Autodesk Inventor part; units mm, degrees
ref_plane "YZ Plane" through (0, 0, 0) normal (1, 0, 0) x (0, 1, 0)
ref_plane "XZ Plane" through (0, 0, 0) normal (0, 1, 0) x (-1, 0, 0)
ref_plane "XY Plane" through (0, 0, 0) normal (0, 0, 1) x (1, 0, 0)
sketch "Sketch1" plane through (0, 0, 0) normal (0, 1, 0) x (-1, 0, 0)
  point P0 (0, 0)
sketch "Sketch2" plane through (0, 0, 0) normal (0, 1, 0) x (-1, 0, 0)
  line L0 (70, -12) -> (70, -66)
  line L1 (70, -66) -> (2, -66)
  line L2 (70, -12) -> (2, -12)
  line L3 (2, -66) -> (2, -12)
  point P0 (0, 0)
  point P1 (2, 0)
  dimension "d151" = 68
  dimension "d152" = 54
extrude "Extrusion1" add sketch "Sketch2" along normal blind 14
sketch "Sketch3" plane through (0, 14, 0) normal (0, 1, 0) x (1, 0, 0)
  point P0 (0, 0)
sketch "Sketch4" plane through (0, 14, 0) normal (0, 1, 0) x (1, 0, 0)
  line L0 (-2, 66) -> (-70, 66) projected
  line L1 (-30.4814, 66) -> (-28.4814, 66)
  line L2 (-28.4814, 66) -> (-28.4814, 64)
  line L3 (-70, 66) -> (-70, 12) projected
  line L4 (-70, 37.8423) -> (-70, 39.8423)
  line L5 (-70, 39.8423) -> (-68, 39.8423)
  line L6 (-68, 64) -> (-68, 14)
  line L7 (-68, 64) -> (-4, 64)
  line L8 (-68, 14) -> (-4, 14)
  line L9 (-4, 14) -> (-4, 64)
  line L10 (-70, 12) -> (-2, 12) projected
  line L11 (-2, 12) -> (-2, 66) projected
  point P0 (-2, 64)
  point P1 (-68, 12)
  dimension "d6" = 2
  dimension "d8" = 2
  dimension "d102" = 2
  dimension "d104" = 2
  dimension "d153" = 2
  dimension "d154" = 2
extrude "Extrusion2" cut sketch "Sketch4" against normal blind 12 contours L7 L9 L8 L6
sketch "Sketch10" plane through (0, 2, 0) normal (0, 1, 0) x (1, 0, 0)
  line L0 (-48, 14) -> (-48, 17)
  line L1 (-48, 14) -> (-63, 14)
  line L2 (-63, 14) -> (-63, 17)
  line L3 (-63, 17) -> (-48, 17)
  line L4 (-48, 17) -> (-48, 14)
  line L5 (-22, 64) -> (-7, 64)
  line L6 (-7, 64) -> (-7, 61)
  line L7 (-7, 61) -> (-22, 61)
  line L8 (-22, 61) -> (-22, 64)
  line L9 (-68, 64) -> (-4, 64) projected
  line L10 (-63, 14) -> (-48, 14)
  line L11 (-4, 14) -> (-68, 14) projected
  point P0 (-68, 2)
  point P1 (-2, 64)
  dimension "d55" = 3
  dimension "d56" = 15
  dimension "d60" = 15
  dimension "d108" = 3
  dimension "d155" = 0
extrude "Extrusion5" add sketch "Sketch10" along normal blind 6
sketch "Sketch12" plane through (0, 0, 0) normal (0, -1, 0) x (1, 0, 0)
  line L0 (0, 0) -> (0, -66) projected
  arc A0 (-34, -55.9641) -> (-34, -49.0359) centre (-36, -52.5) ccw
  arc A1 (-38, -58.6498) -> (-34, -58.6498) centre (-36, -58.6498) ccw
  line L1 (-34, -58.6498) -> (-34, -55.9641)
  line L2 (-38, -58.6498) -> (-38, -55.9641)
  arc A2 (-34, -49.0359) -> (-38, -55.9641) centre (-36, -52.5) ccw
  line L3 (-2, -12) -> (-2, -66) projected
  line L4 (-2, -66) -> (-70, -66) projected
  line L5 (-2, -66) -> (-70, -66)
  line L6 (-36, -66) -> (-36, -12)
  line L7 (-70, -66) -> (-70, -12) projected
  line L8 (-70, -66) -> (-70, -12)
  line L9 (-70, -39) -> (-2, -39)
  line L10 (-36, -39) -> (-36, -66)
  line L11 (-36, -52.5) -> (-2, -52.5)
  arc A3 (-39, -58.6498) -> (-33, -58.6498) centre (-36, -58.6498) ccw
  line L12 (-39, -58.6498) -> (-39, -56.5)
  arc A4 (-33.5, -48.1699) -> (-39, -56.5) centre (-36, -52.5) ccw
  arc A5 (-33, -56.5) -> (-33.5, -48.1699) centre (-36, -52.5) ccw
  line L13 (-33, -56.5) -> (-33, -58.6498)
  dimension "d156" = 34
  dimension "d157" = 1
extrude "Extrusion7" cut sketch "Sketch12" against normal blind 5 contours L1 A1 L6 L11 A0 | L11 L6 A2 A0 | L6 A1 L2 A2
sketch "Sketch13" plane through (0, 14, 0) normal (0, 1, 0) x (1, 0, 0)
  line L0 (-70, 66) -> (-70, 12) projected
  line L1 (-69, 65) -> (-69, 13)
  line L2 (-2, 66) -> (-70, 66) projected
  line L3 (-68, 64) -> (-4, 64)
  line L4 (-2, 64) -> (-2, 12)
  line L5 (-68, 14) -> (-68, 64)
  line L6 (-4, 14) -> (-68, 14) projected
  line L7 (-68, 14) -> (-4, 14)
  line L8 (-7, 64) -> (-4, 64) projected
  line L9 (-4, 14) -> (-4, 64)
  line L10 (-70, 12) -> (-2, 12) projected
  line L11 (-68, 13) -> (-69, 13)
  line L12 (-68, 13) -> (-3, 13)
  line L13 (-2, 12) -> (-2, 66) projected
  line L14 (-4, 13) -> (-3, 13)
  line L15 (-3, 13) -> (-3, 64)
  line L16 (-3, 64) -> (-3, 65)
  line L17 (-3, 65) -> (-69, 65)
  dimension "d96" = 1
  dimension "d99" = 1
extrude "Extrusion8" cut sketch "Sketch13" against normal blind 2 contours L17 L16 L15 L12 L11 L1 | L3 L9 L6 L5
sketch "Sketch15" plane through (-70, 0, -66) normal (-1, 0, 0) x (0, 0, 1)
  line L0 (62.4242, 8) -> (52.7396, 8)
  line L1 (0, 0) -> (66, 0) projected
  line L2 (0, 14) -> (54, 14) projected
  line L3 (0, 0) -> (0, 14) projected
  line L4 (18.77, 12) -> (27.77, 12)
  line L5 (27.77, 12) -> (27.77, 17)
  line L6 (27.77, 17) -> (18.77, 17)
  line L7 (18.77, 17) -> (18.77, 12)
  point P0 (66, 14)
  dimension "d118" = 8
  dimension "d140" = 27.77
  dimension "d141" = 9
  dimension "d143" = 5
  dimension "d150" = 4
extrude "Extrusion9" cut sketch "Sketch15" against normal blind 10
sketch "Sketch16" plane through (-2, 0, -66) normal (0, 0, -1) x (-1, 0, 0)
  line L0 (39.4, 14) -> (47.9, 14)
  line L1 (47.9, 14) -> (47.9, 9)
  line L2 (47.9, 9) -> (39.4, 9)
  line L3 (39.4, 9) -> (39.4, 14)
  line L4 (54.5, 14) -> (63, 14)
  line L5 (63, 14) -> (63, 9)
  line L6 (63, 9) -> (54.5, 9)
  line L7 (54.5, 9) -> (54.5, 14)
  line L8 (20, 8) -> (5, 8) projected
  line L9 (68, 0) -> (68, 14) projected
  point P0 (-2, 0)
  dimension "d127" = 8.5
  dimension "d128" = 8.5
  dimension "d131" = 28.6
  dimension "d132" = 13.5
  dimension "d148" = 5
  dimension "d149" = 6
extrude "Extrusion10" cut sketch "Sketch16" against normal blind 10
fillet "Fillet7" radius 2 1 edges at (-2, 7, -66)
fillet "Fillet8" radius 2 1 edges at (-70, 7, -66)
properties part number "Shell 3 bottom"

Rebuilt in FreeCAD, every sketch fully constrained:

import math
import FreeCAD as App
import Part
import Sketcher

V = App.Vector
Q = App.Units.Quantity


def edges_at(feature, points):
    """Names of the edges that pass closest to the given points."""
    edges = feature.Shape.Edges
    near = lambda p: min(range(len(edges)), key=lambda i: edges[i].distToShape(Part.Vertex(*p))[0])
    return sorted({f"Edge{near(p) + 1}" for p in points})

doc = App.newDocument("Part")
body = doc.addObject("PartDesign::Body", "Body")

sketch1 = body.newObject("Sketcher::SketchObject", "Sketch")
sketch1.AttachmentSupport = (doc.getObject("XZ_Plane"), [""])
sketch1.MapMode = "FlatFace"
sketch1.addGeometry(Part.LineSegment(V(-70, -66, 0), V(-70, -12, 0)), False)
sketch1.addGeometry(Part.LineSegment(V(-70, -12, 0), V(-2, -12, 0)), False)
sketch1.addGeometry(Part.LineSegment(V(-2, -12, 0), V(-2, -66, 0)), False)
sketch1.addGeometry(Part.LineSegment(V(-2, -66, 0), V(-70, -66, 0)), False)
sketch1.addConstraint(Sketcher.Constraint("Coincident", 0, 2, 1, 1))
sketch1.addConstraint(Sketcher.Constraint("Coincident", 1, 2, 2, 1))
sketch1.addConstraint(Sketcher.Constraint("Coincident", 2, 2, 3, 1))
sketch1.addConstraint(Sketcher.Constraint("Coincident", 3, 2, 0, 1))
sketch1.addConstraint(Sketcher.Constraint("Vertical", 0))
sketch1.addConstraint(Sketcher.Constraint("Horizontal", 1))
sketch1.addConstraint(Sketcher.Constraint("Vertical", 2))
sketch1.addConstraint(Sketcher.Constraint("Horizontal", 3))
sketch1.addConstraint(Sketcher.Constraint("DistanceX", 1, 1, 1, 2, Q("68 mm")))
sketch1.addConstraint(Sketcher.Constraint("DistanceY", 0, 1, 0, 2, Q("54 mm")))
sketch1.addConstraint(Sketcher.Constraint("DistanceX", 0, 2, -1, 1, Q("70 mm")))
sketch1.addConstraint(Sketcher.Constraint("DistanceY", 0, 2, -1, 1, Q("12 mm")))
pad1 = body.newObject("PartDesign::Pad", "Pad")
pad1.Profile = sketch1
pad1.Length = 14
pad1.Reversed = True

sketch2 = body.newObject("Sketcher::SketchObject", "Sketch001")
sketch2.AttachmentSupport = (doc.getObject("XZ_Plane"), [""])
sketch2.MapMode = "FlatFace"
sketch2.AttachmentOffset = App.Placement(V(0, 0, -14), App.Rotation())
sketch2.addGeometry(Part.LineSegment(V(-4, -64, 0), V(-68, -64, 0)), False)
sketch2.addGeometry(Part.LineSegment(V(-68, -64, 0), V(-68, -14, 0)), False)
sketch2.addGeometry(Part.LineSegment(V(-68, -14, 0), V(-4, -14, 0)), False)
sketch2.addGeometry(Part.LineSegment(V(-4, -14, 0), V(-4, -64, 0)), False)
sketch2.addConstraint(Sketcher.Constraint("Coincident", 0, 2, 1, 1))
sketch2.addConstraint(Sketcher.Constraint("Coincident", 1, 2, 2, 1))
sketch2.addConstraint(Sketcher.Constraint("Coincident", 2, 2, 3, 1))
sketch2.addConstraint(Sketcher.Constraint("Coincident", 3, 2, 0, 1))
sketch2.addConstraint(Sketcher.Constraint("Horizontal", 0))
sketch2.addConstraint(Sketcher.Constraint("Vertical", 1))
sketch2.addConstraint(Sketcher.Constraint("Horizontal", 2))
sketch2.addConstraint(Sketcher.Constraint("Vertical", 3))
sketch2.addConstraint(Sketcher.Constraint("DistanceX", 0, 2, 0, 1, Q("64 mm")))
sketch2.addConstraint(Sketcher.Constraint("DistanceY", 1, 1, 1, 2, Q("50 mm")))
sketch2.addConstraint(Sketcher.Constraint("DistanceX", 0, 2, -1, 1, Q("68 mm")))
sketch2.addConstraint(Sketcher.Constraint("DistanceY", 0, 2, -1, 1, Q("64 mm")))
pocket1 = body.newObject("PartDesign::Pocket", "Pocket")
pocket1.Profile = sketch2
pocket1.Length = 12
pocket1.Reversed = True

sketch3 = body.newObject("Sketcher::SketchObject", "Sketch002")
sketch3.AttachmentSupport = (doc.getObject("XZ_Plane"), [""])
sketch3.MapMode = "FlatFace"
sketch3.AttachmentOffset = App.Placement(V(0, 0, -2), App.Rotation())
sketch3.addGeometry(Part.LineSegment(V(-63, -14, 0), V(-48, -14, 0)), False)
sketch3.addGeometry(Part.LineSegment(V(-48, -14, 0), V(-48, -17, 0)), False)
sketch3.addGeometry(Part.LineSegment(V(-48, -17, 0), V(-63, -17, 0)), False)
sketch3.addGeometry(Part.LineSegment(V(-63, -17, 0), V(-63, -14, 0)), False)
sketch3.addGeometry(Part.LineSegment(V(-7, -64, 0), V(-22, -64, 0)), False)
sketch3.addGeometry(Part.LineSegment(V(-22, -64, 0), V(-22, -61, 0)), False)
sketch3.addGeometry(Part.LineSegment(V(-22, -61, 0), V(-7, -61, 0)), False)
sketch3.addGeometry(Part.LineSegment(V(-7, -61, 0), V(-7, -64, 0)), False)
sketch3.addConstraint(Sketcher.Constraint("Coincident", 0, 2, 1, 1))
sketch3.addConstraint(Sketcher.Constraint("Coincident", 1, 2, 2, 1))
sketch3.addConstraint(Sketcher.Constraint("Coincident", 2, 2, 3, 1))
sketch3.addConstraint(Sketcher.Constraint("Coincident", 3, 2, 0, 1))
sketch3.addConstraint(Sketcher.Constraint("Coincident", 4, 2, 5, 1))
sketch3.addConstraint(Sketcher.Constraint("Coincident", 5, 2, 6, 1))
sketch3.addConstraint(Sketcher.Constraint("Coincident", 6, 2, 7, 1))
sketch3.addConstraint(Sketcher.Constraint("Coincident", 7, 2, 4, 1))
sketch3.addConstraint(Sketcher.Constraint("Horizontal", 0))
sketch3.addConstraint(Sketcher.Constraint("Vertical", 1))
sketch3.addConstraint(Sketcher.Constraint("Horizontal", 2))
sketch3.addConstraint(Sketcher.Constraint("Vertical", 3))
sketch3.addConstraint(Sketcher.Constraint("Horizontal", 4))
sketch3.addConstraint(Sketcher.Constraint("Vertical", 5))
sketch3.addConstraint(Sketcher.Constraint("Horizontal", 6))
sketch3.addConstraint(Sketcher.Constraint("Vertical", 7))
sketch3.addConstraint(Sketcher.Constraint("Equal", 2, 4))
sketch3.addConstraint(Sketcher.Constraint("Equal", 3, 5))
sketch3.addConstraint(Sketcher.Constraint("DistanceX", 0, 1, 0, 2, Q("15 mm")))
sketch3.addConstraint(Sketcher.Constraint("DistanceY", 1, 2, 1, 1, Q("3 mm")))
sketch3.addConstraint(Sketcher.Constraint("DistanceX", 0, 2, -1, 1, Q("48 mm")))
sketch3.addConstraint(Sketcher.Constraint("DistanceY", 0, 2, -1, 1, Q("14 mm")))
sketch3.addConstraint(Sketcher.Constraint("DistanceX", 4, 2, -1, 1, Q("22 mm")))
sketch3.addConstraint(Sketcher.Constraint("DistanceY", 4, 2, -1, 1, Q("64 mm")))
pad2 = body.newObject("PartDesign::Pad", "Pad001")
pad2.Profile = sketch3
pad2.Length = 6
pad2.Reversed = True

sketch4 = body.newObject("Sketcher::SketchObject", "Sketch003")
sketch4.AttachmentSupport = (doc.getObject("XZ_Plane"), [""])
sketch4.MapMode = "FlatFace"
sketch4.addGeometry(Part.LineSegment(V(-34, -58.6, 0), V(-34, -56, 0)), False)
sketch4.addGeometry(Part.ArcOfCircle(Part.Circle(V(-36, -52.5, 0), V(0, 0, 1), 4), math.radians(-60), math.radians(240)), False)
sketch4.addGeometry(Part.LineSegment(V(-38, -56, 0), V(-38, -58.6, 0)), False)
sketch4.addGeometry(Part.ArcOfCircle(Part.Circle(V(-36, -58.6, 0), V(0, 0, 1), 2), math.radians(180), math.radians(360)), False)
sketch4.addConstraint(Sketcher.Constraint("Coincident", 0, 2, 1, 1))
sketch4.addConstraint(Sketcher.Constraint("Coincident", 1, 2, 2, 1))
sketch4.addConstraint(Sketcher.Constraint("Tangent", 2, 2, 3, 1))
sketch4.addConstraint(Sketcher.Constraint("Tangent", 3, 2, 0, 1))
sketch4.addConstraint(Sketcher.Constraint("Vertical", 0))
sketch4.addConstraint(Sketcher.Constraint("Vertical", 2))
sketch4.addConstraint(Sketcher.Constraint("Horizontal", 0, 2, 1, 2))
sketch4.addConstraint(Sketcher.Constraint("DistanceX", 0, 2, -1, 1, Q("34 mm")))
sketch4.addConstraint(Sketcher.Constraint("Radius", 1, Q("4 mm")))
sketch4.addConstraint(Sketcher.Constraint("Radius", 3, Q("2 mm")))
sketch4.addConstraint(Sketcher.Constraint("DistanceY", 1, 3, -1, 1, Q("52.5 mm")))
sketch4.addConstraint(Sketcher.Constraint("DistanceY", 0, 1, 0, 2, Q("2.6857 mm")))
pocket2 = body.newObject("PartDesign::Pocket", "Pocket001")
pocket2.Profile = sketch4
pocket2.Length = 5

sketch5 = body.newObject("Sketcher::SketchObject", "Sketch004")
sketch5.AttachmentSupport = (doc.getObject("XZ_Plane"), [""])
sketch5.MapMode = "FlatFace"
sketch5.AttachmentOffset = App.Placement(V(0, 0, -14), App.Rotation())
sketch5.addGeometry(Part.LineSegment(V(-3, -65, 0), V(-69, -65, 0)), False)
sketch5.addGeometry(Part.LineSegment(V(-69, -65, 0), V(-69, -13, 0)), False)
sketch5.addGeometry(Part.LineSegment(V(-69, -13, 0), V(-3, -13, 0)), False)
sketch5.addGeometry(Part.LineSegment(V(-3, -13, 0), V(-3, -65, 0)), False)
sketch5.addConstraint(Sketcher.Constraint("Coincident", 0, 2, 1, 1))
sketch5.addConstraint(Sketcher.Constraint("Coincident", 1, 2, 2, 1))
sketch5.addConstraint(Sketcher.Constraint("Coincident", 2, 2, 3, 1))
sketch5.addConstraint(Sketcher.Constraint("Coincident", 3, 2, 0, 1))
sketch5.addConstraint(Sketcher.Constraint("Horizontal", 0))
sketch5.addConstraint(Sketcher.Constraint("Vertical", 1))
sketch5.addConstraint(Sketcher.Constraint("Horizontal", 2))
sketch5.addConstraint(Sketcher.Constraint("Vertical", 3))
sketch5.addConstraint(Sketcher.Constraint("DistanceX", 0, 2, 0, 1, Q("66 mm")))
sketch5.addConstraint(Sketcher.Constraint("DistanceY", 1, 1, 1, 2, Q("52 mm")))
sketch5.addConstraint(Sketcher.Constraint("DistanceX", 0, 2, -1, 1, Q("69 mm")))
sketch5.addConstraint(Sketcher.Constraint("DistanceY", 0, 2, -1, 1, Q("65 mm")))
pocket3 = body.newObject("PartDesign::Pocket", "Pocket002")
pocket3.Profile = sketch5
pocket3.Length = 2
pocket3.Reversed = True

sketch6 = body.newObject("Sketcher::SketchObject", "Sketch005")
sketch6.AttachmentSupport = (doc.getObject("YZ_Plane"), [""])
sketch6.MapMode = "FlatFace"
sketch6.AttachmentOffset = App.Placement(V(0, 0, -70), App.Rotation())
sketch6.addGeometry(Part.LineSegment(V(17, -47, 0), V(12, -47, 0)), False)
sketch6.addGeometry(Part.LineSegment(V(12, -47, 0), V(12, -38, 0)), False)
sketch6.addGeometry(Part.LineSegment(V(12, -38, 0), V(17, -38, 0)), False)
sketch6.addGeometry(Part.LineSegment(V(17, -38, 0), V(17, -47, 0)), False)
sketch6.addConstraint(Sketcher.Constraint("Coincident", 0, 2, 1, 1))
sketch6.addConstraint(Sketcher.Constraint("Coincident", 1, 2, 2, 1))
sketch6.addConstraint(Sketcher.Constraint("Coincident", 2, 2, 3, 1))
sketch6.addConstraint(Sketcher.Constraint("Coincident", 3, 2, 0, 1))
sketch6.addConstraint(Sketcher.Constraint("Horizontal", 0))
sketch6.addConstraint(Sketcher.Constraint("Vertical", 1))
sketch6.addConstraint(Sketcher.Constraint("Horizontal", 2))
sketch6.addConstraint(Sketcher.Constraint("Vertical", 3))
sketch6.addConstraint(Sketcher.Constraint("DistanceX", 0, 2, 0, 1, Q("5 mm")))
sketch6.addConstraint(Sketcher.Constraint("DistanceY", 1, 1, 1, 2, Q("9 mm")))
sketch6.addConstraint(Sketcher.Constraint("DistanceX", -1, 1, 0, 2, Q("12 mm")))
sketch6.addConstraint(Sketcher.Constraint("DistanceY", 0, 2, -1, 1, Q("47.23 mm")))
pocket4 = body.newObject("PartDesign::Pocket", "Pocket003")
pocket4.Profile = sketch6
pocket4.Length = 10
pocket4.Reversed = True

sketch7 = body.newObject("Sketcher::SketchObject", "Sketch006")
sketch7.AttachmentSupport = (doc.getObject("XY_Plane"), [""])
sketch7.MapMode = "FlatFace"
sketch7.AttachmentOffset = App.Placement(V(0, 0, -66), App.Rotation())
sketch7.addGeometry(Part.LineSegment(V(-50, 14, 0), V(-41, 14, 0)), False)
sketch7.addGeometry(Part.LineSegment(V(-41, 14, 0), V(-41, 9, 0)), False)
sketch7.addGeometry(Part.LineSegment(V(-41, 9, 0), V(-50, 9, 0)), False)
sketch7.addGeometry(Part.LineSegment(V(-50, 9, 0), V(-50, 14, 0)), False)
sketch7.addGeometry(Part.LineSegment(V(-65, 14, 0), V(-56, 14, 0)), False)
sketch7.addGeometry(Part.LineSegment(V(-56, 14, 0), V(-56, 9, 0)), False)
sketch7.addGeometry(Part.LineSegment(V(-56, 9, 0), V(-65, 9, 0)), False)
sketch7.addGeometry(Part.LineSegment(V(-65, 9, 0), V(-65, 14, 0)), False)
sketch7.addConstraint(Sketcher.Constraint("Coincident", 0, 2, 1, 1))
sketch7.addConstraint(Sketcher.Constraint("Coincident", 1, 2, 2, 1))
sketch7.addConstraint(Sketcher.Constraint("Coincident", 2, 2, 3, 1))
sketch7.addConstraint(Sketcher.Constraint("Coincident", 3, 2, 0, 1))
sketch7.addConstraint(Sketcher.Constraint("Coincident", 4, 2, 5, 1))
sketch7.addConstraint(Sketcher.Constraint("Coincident", 5, 2, 6, 1))
sketch7.addConstraint(Sketcher.Constraint("Coincident", 6, 2, 7, 1))
sketch7.addConstraint(Sketcher.Constraint("Coincident", 7, 2, 4, 1))
sketch7.addConstraint(Sketcher.Constraint("Horizontal", 0))
sketch7.addConstraint(Sketcher.Constraint("Vertical", 1))
sketch7.addConstraint(Sketcher.Constraint("Horizontal", 2))
sketch7.addConstraint(Sketcher.Constraint("Vertical", 3))
sketch7.addConstraint(Sketcher.Constraint("Horizontal", 4))
sketch7.addConstraint(Sketcher.Constraint("Vertical", 5))
sketch7.addConstraint(Sketcher.Constraint("Horizontal", 6))
sketch7.addConstraint(Sketcher.Constraint("Vertical", 7))
sketch7.addConstraint(Sketcher.Constraint("Horizontal", 3, 2, 4, 2))
sketch7.addConstraint(Sketcher.Constraint("Horizontal", 2, 2, 5, 2))
sketch7.addConstraint(Sketcher.Constraint("Equal", 2, 4))
sketch7.addConstraint(Sketcher.Constraint("DistanceY", 1, 2, 1, 1, Q("5 mm")))
sketch7.addConstraint(Sketcher.Constraint("DistanceX", 0, 1, 0, 2, Q("8.5 mm")))
sketch7.addConstraint(Sketcher.Constraint("DistanceY", -1, 1, 0, 2, Q("14 mm")))
sketch7.addConstraint(Sketcher.Constraint("DistanceX", 6, 2, -1, 1, Q("65 mm")))
sketch7.addConstraint(Sketcher.Constraint("DistanceX", 0, 2, -1, 1, Q("41.4 mm")))
pocket5 = body.newObject("PartDesign::Pocket", "Pocket004")
pocket5.Profile = sketch7
pocket5.Length = 10
pocket5.Reversed = True
doc.recompute()

fillet = body.newObject("PartDesign::Fillet", "Fillet")
fillet.Base = (pocket5, edges_at(pocket5, [(-2, 7, -66)]))
fillet.Radius = 2
doc.recompute()

fillet2 = body.newObject("PartDesign::Fillet", "Fillet001")
fillet2.Base = (fillet, edges_at(fillet, [(-70, 7, -66)]))
fillet2.Radius = 2

doc.recompute()
